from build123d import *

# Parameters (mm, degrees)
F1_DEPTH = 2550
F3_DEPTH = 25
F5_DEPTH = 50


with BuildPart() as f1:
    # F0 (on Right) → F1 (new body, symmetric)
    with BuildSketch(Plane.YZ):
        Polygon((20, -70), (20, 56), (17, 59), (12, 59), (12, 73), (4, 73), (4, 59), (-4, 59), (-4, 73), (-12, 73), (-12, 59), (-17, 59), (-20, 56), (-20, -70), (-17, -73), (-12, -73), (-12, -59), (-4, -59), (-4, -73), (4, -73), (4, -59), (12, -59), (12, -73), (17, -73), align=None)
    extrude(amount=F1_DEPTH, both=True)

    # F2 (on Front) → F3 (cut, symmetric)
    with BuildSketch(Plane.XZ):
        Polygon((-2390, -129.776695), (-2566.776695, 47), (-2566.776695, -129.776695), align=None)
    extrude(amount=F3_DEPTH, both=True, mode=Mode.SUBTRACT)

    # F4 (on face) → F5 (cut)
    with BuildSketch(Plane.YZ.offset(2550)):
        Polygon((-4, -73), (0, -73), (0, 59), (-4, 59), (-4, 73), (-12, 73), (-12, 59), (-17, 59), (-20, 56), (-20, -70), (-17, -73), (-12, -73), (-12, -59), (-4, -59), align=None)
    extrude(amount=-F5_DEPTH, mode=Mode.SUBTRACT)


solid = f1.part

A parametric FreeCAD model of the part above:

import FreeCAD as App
import Part
import Sketcher
from FreeCAD import Vector
Q = App.Units.Quantity

doc = App.newDocument("Part")
params = doc.addObject("Spreadsheet::Sheet", "Params")
for row, (alias, value) in enumerate([
    ("sketch1_width", "5 mm"),
    ("sketch1_width2", "8 mm"),
    ("sketch1_height", "126 mm"),
    ("sketch1_height2", "14 mm"),
    ("pad1_length", "5100 mm"),
    ("sketch2_length", "250 mm"),
    ("pocket1_length", "50 mm"),
    ("sketch3_width", "4 mm"),
    ("sketch3_width2", "8 mm"),
    ("sketch3_width3", "5 mm"),
    ("sketch3_height", "132 mm"),
    ("sketch3_height2", "14 mm"),
    ("pocket2_length", "50 mm"),
], start=1):
    params.set(f"A{row}", alias)
    params.set(f"B{row}", "=" + value)
    params.setAlias(f"B{row}", alias)

body = doc.addObject("PartDesign::Body", "Body")

# Sketch on YZ plane
sketch1 = doc.addObject("Sketcher::SketchObject", "Sketch")
body.addObject(sketch1)
sketch1.AttachmentSupport = (doc.YZ_Plane, [""])
sketch1.MapMode = "FlatFace"
sketch1.addGeometry([
    Part.LineSegment(Vector(20, -70, 0), Vector(20, 56, 0)),  # 0
    Part.LineSegment(Vector(20, 56, 0), Vector(17, 59, 0)),  # 1
    Part.LineSegment(Vector(17, 59, 0), Vector(12, 59, 0)),  # 2
    Part.LineSegment(Vector(12, 59, 0), Vector(12, 73, 0)),  # 3
    Part.LineSegment(Vector(12, 73, 0), Vector(4, 73, 0)),  # 4
    Part.LineSegment(Vector(4, 73, 0), Vector(4, 59, 0)),  # 5
    Part.LineSegment(Vector(4, 59, 0), Vector(-4, 59, 0)),  # 6
    Part.LineSegment(Vector(-4, 59, 0), Vector(-4, 73, 0)),  # 7
    Part.LineSegment(Vector(-4, 73, 0), Vector(-12, 73, 0)),  # 8
    Part.LineSegment(Vector(-12, 73, 0), Vector(-12, 59, 0)),  # 9
    Part.LineSegment(Vector(-12, 59, 0), Vector(-17, 59, 0)),  # 10
    Part.LineSegment(Vector(-17, 59, 0), Vector(-20, 56, 0)),  # 11
    Part.LineSegment(Vector(-20, 56, 0), Vector(-20, -70, 0)),  # 12
    Part.LineSegment(Vector(-20, -70, 0), Vector(-17, -73, 0)),  # 13
    Part.LineSegment(Vector(-17, -73, 0), Vector(-12, -73, 0)),  # 14
    Part.LineSegment(Vector(-12, -73, 0), Vector(-12, -59, 0)),  # 15
    Part.LineSegment(Vector(-12, -59, 0), Vector(-4, -59, 0)),  # 16
    Part.LineSegment(Vector(-4, -59, 0), Vector(-4, -73, 0)),  # 17
    Part.LineSegment(Vector(-4, -73, 0), Vector(4, -73, 0)),  # 18
    Part.LineSegment(Vector(4, -73, 0), Vector(4, -59, 0)),  # 19
    Part.LineSegment(Vector(4, -59, 0), Vector(12, -59, 0)),  # 20
    Part.LineSegment(Vector(12, -59, 0), Vector(12, -73, 0)),  # 21
    Part.LineSegment(Vector(12, -73, 0), Vector(17, -73, 0)),  # 22
    Part.LineSegment(Vector(17, -73, 0), Vector(20, -70, 0)),  # 23
], False)
sketch1.addConstraint([
    Sketcher.Constraint("Coincident", 0, 2, 1, 1),
    Sketcher.Constraint("Coincident", 1, 2, 2, 1),
    Sketcher.Constraint("Coincident", 2, 2, 3, 1),
    Sketcher.Constraint("Coincident", 3, 2, 4, 1),
    Sketcher.Constraint("Coincident", 4, 2, 5, 1),
    Sketcher.Constraint("Coincident", 5, 2, 6, 1),
    Sketcher.Constraint("Coincident", 6, 2, 7, 1),
    Sketcher.Constraint("Coincident", 7, 2, 8, 1),
    Sketcher.Constraint("Coincident", 8, 2, 9, 1),
    Sketcher.Constraint("Coincident", 9, 2, 10, 1),
    Sketcher.Constraint("Coincident", 10, 2, 11, 1),
    Sketcher.Constraint("Coincident", 11, 2, 12, 1),
    Sketcher.Constraint("Coincident", 12, 2, 13, 1),
    Sketcher.Constraint("Coincident", 13, 2, 14, 1),
    Sketcher.Constraint("Coincident", 14, 2, 15, 1),
    Sketcher.Constraint("Coincident", 15, 2, 16, 1),
    Sketcher.Constraint("Coincident", 16, 2, 17, 1),
    Sketcher.Constraint("Coincident", 17, 2, 18, 1),
    Sketcher.Constraint("Coincident", 18, 2, 19, 1),
    Sketcher.Constraint("Coincident", 19, 2, 20, 1),
    Sketcher.Constraint("Coincident", 20, 2, 21, 1),
    Sketcher.Constraint("Coincident", 21, 2, 22, 1),
    Sketcher.Constraint("Coincident", 22, 2, 23, 1),
    Sketcher.Constraint("Coincident", 23, 2, 0, 1),
    Sketcher.Constraint("Vertical", 0),
    Sketcher.Constraint("Horizontal", 2),
    Sketcher.Constraint("Vertical", 3),
    Sketcher.Constraint("Horizontal", 4),
    Sketcher.Constraint("Vertical", 5),
    Sketcher.Constraint("Horizontal", 6),
    Sketcher.Constraint("Vertical", 7),
    Sketcher.Constraint("Horizontal", 8),
    Sketcher.Constraint("Vertical", 9),
    Sketcher.Constraint("Horizontal", 10),
    Sketcher.Constraint("Vertical", 12),
    Sketcher.Constraint("Horizontal", 14),
    Sketcher.Constraint("Vertical", 15),
    Sketcher.Constraint("Horizontal", 16),
    Sketcher.Constraint("Vertical", 17),
    Sketcher.Constraint("Horizontal", 18),
    Sketcher.Constraint("Vertical", 19),
    Sketcher.Constraint("Horizontal", 20),
    Sketcher.Constraint("Vertical", 21),
    Sketcher.Constraint("Horizontal", 22),
    Sketcher.Constraint("Symmetric", 3, 2, 14, 2, -1, 1),
    Sketcher.Constraint("Symmetric", 5, 2, 16, 2, -1, 1),
    Sketcher.Constraint("Symmetric", 7, 2, 18, 2, -1, 1),
    Sketcher.Constraint("Symmetric", 9, 2, 20, 2, -1, 1),
    Sketcher.Constraint("Symmetric", 4, 2, 7, 2, -2),
    Sketcher.Constraint("Symmetric", 2, 2, 9, 2, -2),
    Sketcher.Constraint("Symmetric", 0, 2, 11, 2, -2),
    Sketcher.Constraint("Symmetric", 13, 2, 22, 2, -2),
    Sketcher.Constraint("Perpendicular", 1, 11),
    Sketcher.Constraint("Perpendicular", 11, 13),
    Sketcher.Constraint("Perpendicular", 13, 23),
    Sketcher.Constraint("Horizontal", 2, 2, 5, 2),
    Sketcher.Constraint("Horizontal", 12, 2, 23, 2),
    Sketcher.Constraint("Vertical", 10, 2, 13, 2),
    Sketcher.Constraint("Equal", 4, 6),
    Sketcher.Constraint("DistanceX", 2, 2, 2, 1, Q("5 mm")),
    Sketcher.Constraint("DistanceX", 4, 2, 4, 1, Q("8 mm")),
    Sketcher.Constraint("DistanceY", 0, 1, 0, 2, Q("126 mm")),
    Sketcher.Constraint("DistanceY", 3, 1, 3, 2, Q("14 mm")),
    Sketcher.Constraint("DistanceX", -1, 1, 0, 2, Q("20 mm")),
])
sketch1.setExpression("Constraints[59]", "Params.sketch1_width")
sketch1.setExpression("Constraints[60]", "Params.sketch1_width2")
sketch1.setExpression("Constraints[61]", "Params.sketch1_height")
sketch1.setExpression("Constraints[62]", "Params.sketch1_height2")
pad1 = doc.addObject("PartDesign::Pad", "Pad")
body.addObject(pad1)
pad1.Profile = sketch1
pad1.setExpression("Length", "Params.pad1_length")
pad1.Midplane = True

# Sketch on XZ plane
sketch2 = doc.addObject("Sketcher::SketchObject", "Sketch001")
body.addObject(sketch2)
sketch2.AttachmentSupport = (doc.XZ_Plane, [""])
sketch2.MapMode = "FlatFace"
sketch2.addGeometry([
    Part.LineSegment(Vector(-2390, -130, 0), Vector(-2567, 47, 0)),
    Part.LineSegment(Vector(-2567, 47, 0), Vector(-2567, -130, 0)),
    Part.LineSegment(Vector(-2567, -130, 0), Vector(-2390, -130, 0)),
], False)
sketch2.addConstraint([
    Sketcher.Constraint("Coincident", 0, 2, 1, 1),
    Sketcher.Constraint("Coincident", 1, 2, 2, 1),
    Sketcher.Constraint("Coincident", 2, 2, 0, 1),
    Sketcher.Constraint("Vertical", 1),
    Sketcher.Constraint("Horizontal", 2),
    Sketcher.Constraint("Equal", 2, 1),
    Sketcher.Constraint("Distance", 0, Q("250 mm")),
    Sketcher.Constraint("DistanceY", -1, 1, 0, 2, Q("47 mm")),
    Sketcher.Constraint("DistanceX", 2, 2, -1, 1, Q("2390 mm")),
])
sketch2.setExpression("Constraints[6]", "Params.sketch2_length")
pocket1 = doc.addObject("PartDesign::Pocket", "Pocket")
body.addObject(pocket1)
pocket1.Profile = sketch2
pocket1.setExpression("Length", "Params.pocket1_length")
pocket1.Midplane = True

# Sketch on YZ plane
sketch3 = doc.addObject("Sketcher::SketchObject", "Sketch002")
body.addObject(sketch3)
sketch3.AttachmentSupport = (doc.YZ_Plane, [""])
sketch3.MapMode = "FlatFace"
sketch3.AttachmentOffset = App.Placement(Vector(0, 0, 2550), App.Rotation())
sketch3.addGeometry([
    Part.LineSegment(Vector(-4, -73, 0), Vector(0, -73, 0)),  # 0
    Part.LineSegment(Vector(0, -73, 0), Vector(0, 59, 0)),  # 1
    Part.LineSegment(Vector(0, 59, 0), Vector(-4, 59, 0)),  # 2
    Part.LineSegment(Vector(-4, 59, 0), Vector(-4, 73, 0)),  # 3
    Part.LineSegment(Vector(-4, 73, 0), Vector(-12, 73, 0)),  # 4
    Part.LineSegment(Vector(-12, 73, 0), Vector(-12, 59, 0)),  # 5
    Part.LineSegment(Vector(-12, 59, 0), Vector(-17, 59, 0)),  # 6
    Part.LineSegment(Vector(-17, 59, 0), Vector(-20, 56, 0)),  # 7
    Part.LineSegment(Vector(-20, 56, 0), Vector(-20, -70, 0)),  # 8
    Part.LineSegment(Vector(-20, -70, 0), Vector(-17, -73, 0)),  # 9
    Part.LineSegment(Vector(-17, -73, 0), Vector(-12, -73, 0)),  # 10
    Part.LineSegment(Vector(-12, -73, 0), Vector(-12, -59, 0)),  # 11
    Part.LineSegment(Vector(-12, -59, 0), Vector(-4, -59, 0)),  # 12
    Part.LineSegment(Vector(-4, -59, 0), Vector(-4, -73, 0)),  # 13
], False)
sketch3.addConstraint([
    Sketcher.Constraint("Coincident", 0, 2, 1, 1),
    Sketcher.Constraint("Coincident", 1, 2, 2, 1),
    Sketcher.Constraint("Coincident", 2, 2, 3, 1),
    Sketcher.Constraint("Coincident", 3, 2, 4, 1),
    Sketcher.Constraint("Coincident", 4, 2, 5, 1),
    Sketcher.Constraint("Coincident", 5, 2, 6, 1),
    Sketcher.Constraint("Coincident", 6, 2, 7, 1),
    Sketcher.Constraint("Coincident", 7, 2, 8, 1),
    Sketcher.Constraint("Coincident", 8, 2, 9, 1),
    Sketcher.Constraint("Coincident", 9, 2, 10, 1),
    Sketcher.Constraint("Coincident", 10, 2, 11, 1),
    Sketcher.Constraint("Coincident", 11, 2, 12, 1),
    Sketcher.Constraint("Coincident", 12, 2, 13, 1),
    Sketcher.Constraint("Coincident", 13, 2, 0, 1),
    Sketcher.Constraint("Horizontal", 0),
    Sketcher.Constraint("Vertical", 1),
    Sketcher.Constraint("Horizontal", 2),
    Sketcher.Constraint("Vertical", 3),
    Sketcher.Constraint("Horizontal", 4),
    Sketcher.Constraint("Vertical", 5),
    Sketcher.Constraint("Horizontal", 6),
    Sketcher.Constraint("Vertical", 8),
    Sketcher.Constraint("Horizontal", 10),
    Sketcher.Constraint("Vertical", 11),
    Sketcher.Constraint("Horizontal", 12),
    Sketcher.Constraint("Vertical", 13),
    Sketcher.Constraint("Symmetric", 4, 2, 10, 2, -1),
    Sketcher.Constraint("Symmetric", 2, 2, 12, 2, -1),
    Sketcher.Constraint("PointOnObject", 0, 2, -2),
    Sketcher.Constraint("Perpendicular", 7, 9),
    Sketcher.Constraint("Horizontal", 2, 2, 5, 2),
    Sketcher.Constraint("Horizontal", 0, 2, 9, 2),
    Sketcher.Constraint("Vertical", 6, 2, 9, 2),
    Sketcher.Constraint("Equal", 7, 9),
    Sketcher.Constraint("DistanceX", 0, 1, 0, 2, Q("4 mm")),
    Sketcher.Constraint("DistanceX", 4, 2, 4, 1, Q("8 mm")),
    Sketcher.Constraint("DistanceX", 6, 2, 6, 1, Q("5 mm")),
    Sketcher.Constraint("DistanceY", 1, 1, 1, 2, Q("132 mm")),
    Sketcher.Constraint("DistanceY", 3, 1, 3, 2, Q("14 mm")),
    Sketcher.Constraint("DistanceY", 8, 2, 8, 1, Q("126 mm")),
])
sketch3.setExpression("Constraints[34]", "Params.sketch3_width")
sketch3.setExpression("Constraints[35]", "Params.sketch3_width2")
sketch3.setExpression("Constraints[36]", "Params.sketch3_width3")
sketch3.setExpression("Constraints[37]", "Params.sketch3_height")
sketch3.setExpression("Constraints[38]", "Params.sketch3_height2")
pocket2 = doc.addObject("PartDesign::Pocket", "Pocket001")
body.addObject(pocket2)
pocket2.Profile = sketch3
pocket2.setExpression("Length", "Params.pocket2_length")

doc.recompute()
